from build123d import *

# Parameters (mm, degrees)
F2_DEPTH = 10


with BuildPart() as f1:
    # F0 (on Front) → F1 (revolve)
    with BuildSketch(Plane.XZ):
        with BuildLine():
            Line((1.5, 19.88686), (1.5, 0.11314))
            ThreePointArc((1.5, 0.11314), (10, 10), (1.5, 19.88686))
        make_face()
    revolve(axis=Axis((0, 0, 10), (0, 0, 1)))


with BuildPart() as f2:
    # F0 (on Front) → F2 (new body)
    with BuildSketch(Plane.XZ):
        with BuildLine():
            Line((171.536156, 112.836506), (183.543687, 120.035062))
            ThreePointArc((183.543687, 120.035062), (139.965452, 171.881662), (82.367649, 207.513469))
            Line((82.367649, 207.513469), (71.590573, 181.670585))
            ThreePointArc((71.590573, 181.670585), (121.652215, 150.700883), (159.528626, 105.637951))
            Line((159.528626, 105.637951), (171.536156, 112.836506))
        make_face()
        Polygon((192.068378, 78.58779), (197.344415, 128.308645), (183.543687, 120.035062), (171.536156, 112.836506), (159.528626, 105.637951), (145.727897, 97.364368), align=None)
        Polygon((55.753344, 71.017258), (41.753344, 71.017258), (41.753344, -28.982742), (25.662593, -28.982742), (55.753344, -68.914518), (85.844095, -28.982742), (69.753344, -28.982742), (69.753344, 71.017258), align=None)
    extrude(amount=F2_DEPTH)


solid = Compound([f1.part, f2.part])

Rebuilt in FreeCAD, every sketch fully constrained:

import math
import FreeCAD as App
import Part
import Sketcher

V = App.Vector
Q = App.Units.Quantity


def add_polygon(sketch, points):
    """Adds a closed chain of lines whose ends are joined by coincident constraints."""
    first, n = sketch.GeometryCount, len(points)
    for a, b in zip(points, points[1:] + points[:1]):
        sketch.addGeometry(Part.LineSegment(App.Vector(*a, 0), App.Vector(*b, 0)), False)
    for i in range(n):
        sketch.addConstraint(Sketcher.Constraint("Coincident", first + i, 2, first + (i + 1) % n, 1))

doc = App.newDocument("Part")
body = doc.addObject("PartDesign::Body", "Body")

sketch1 = doc.addObject("Sketcher::SketchObject", "Sketch")
body.addObject(sketch1)
sketch1.AttachmentSupport = (doc.XZ_Plane, [""])
sketch1.MapMode = "FlatFace"
sketch1.addGeometry([
    Part.LineSegment(V(1.5, 19.88686, 0), V(1.5, 0.11314, 0)),
    Part.ArcOfCircle(Part.Circle(V(0, 10, 0), V(0, 0, 1), 10), math.radians(-81.373073), math.radians(81.373073)),
], False)
sketch1.addConstraint([
    Sketcher.Constraint("Coincident", 0, 1, 1, 2),
    Sketcher.Constraint("Coincident", 1, 1, 0, 2),
    Sketcher.Constraint("Vertical", 0),
    Sketcher.Constraint("PointOnObject", 1, 3, -2),
    Sketcher.Constraint("Radius", 1, Q("10 mm")),
    Sketcher.Constraint("DistanceY", -1, 1, 1, 3, Q("10 mm")),
    Sketcher.Constraint("DistanceX", -1, 1, 0, 1, Q("1.5 mm")),
])
revolution = doc.addObject("PartDesign::Revolution", "Revolution")
body.addObject(revolution)
revolution.Profile = sketch1
revolution.ReferenceAxis = (sketch1, ["V_Axis"])
revolution.Angle = 360
body2 = doc.addObject("PartDesign::Body", "Body001")
body2.AllowCompound = True

sketch2 = doc.addObject("Sketcher::SketchObject", "Sketch001")
body2.addObject(sketch2)
sketch2.AttachmentSupport = (doc.getObject("XZ_Plane001"), [""])
sketch2.MapMode = "FlatFace"
sketch2.addGeometry(Part.ArcOfCircle(Part.Circle(V(0.000008, 10.00001, 0), V(0, 0, 1), 213.999988), math.radians(30.942829), math.radians(67.362745)), False)
sketch2.addGeometry(Part.LineSegment(V(82.367649, 207.513469, 0), V(71.590573, 181.670585, 0)), False)
sketch2.addGeometry(Part.ArcOfCircle(Part.Circle(V(-0.000004, 9.999993, 0), V(0, 0, 1), 186.000008), math.radians(30.942831), math.radians(67.362743)), False)
sketch2.addGeometry(Part.LineSegment(V(159.528626, 105.637951, 0), V(145.727897, 97.364368, 0)), False)
sketch2.addGeometry(Part.LineSegment(V(145.727897, 97.364368, 0), V(192.068378, 78.58779, 0)), False)
sketch2.addGeometry(Part.LineSegment(V(192.068378, 78.58779, 0), V(197.344415, 128.308645, 0)), False)
sketch2.addGeometry(Part.LineSegment(V(197.344415, 128.308645, 0), V(183.543687, 120.035062, 0)), False)
add_polygon(sketch2, [(41.753344, 71.017258), (41.753344, -28.982742), (25.662593, -28.982742), (55.753344, -68.914518), (85.844095, -28.982742), (69.753344, -28.982742), (69.753344, 71.017258)])
sketch2.addConstraint([
    Sketcher.Constraint("Coincident", 0, 2, 1, 1),
    Sketcher.Constraint("Coincident", 1, 2, 2, 2),
    Sketcher.Constraint("Coincident", 2, 1, 3, 1),
    Sketcher.Constraint("Coincident", 3, 2, 4, 1),
    Sketcher.Constraint("Coincident", 4, 2, 5, 1),
    Sketcher.Constraint("Coincident", 5, 2, 6, 1),
    Sketcher.Constraint("Coincident", 6, 2, 0, 1),
    Sketcher.Constraint("Vertical", 7),
    Sketcher.Constraint("Horizontal", 8),
    Sketcher.Constraint("Horizontal", 11),
    Sketcher.Constraint("Vertical", 12),
    Sketcher.Constraint("Horizontal", 13),
    Sketcher.Constraint("Parallel", 3, 6),
    Sketcher.Constraint("Horizontal", 8, 2, 10, 2),
    Sketcher.Constraint("Equal", 8, 11),
    Sketcher.Constraint("Equal", 4, 5),
    Sketcher.Constraint("Equal", 3, 6),
    Sketcher.Constraint("Equal", 5, 9),
    Sketcher.Constraint("Equal", 9, 10),
    Sketcher.Constraint("DistanceX", 13, 2, 13, 1, Q("28 mm")),
    Sketcher.Constraint("DistanceY", 7, 2, 7, 1, Q("100 mm")),
    Sketcher.Constraint("Angle", 9, Q("-53 deg")),
    Sketcher.Constraint("Distance", 1, Q("28 mm")),
    Sketcher.Constraint("Distance", 4, Q("50.000001 mm")),
    Sketcher.Constraint("Radius", 0, Q("213.999988 mm")),
    Sketcher.Constraint("Radius", 2, Q("186.000008 mm")),
    Sketcher.Constraint("DistanceY", 3, 2, 0, 2, Q("110.149101 mm")),
    Sketcher.Constraint("DistanceX", 2, 3, 3, 2, Q("145.727901 mm")),
    Sketcher.Constraint("DistanceX", 2, 3, 10, 2, Q("85.844099 mm")),
    Sketcher.Constraint("Distance", 3, Q("16.090752 mm")),
    Sketcher.Constraint("DistanceY", -1, 1, 0, 3, Q("10.00001 mm")),
    Sketcher.Constraint("DistanceY", -1, 1, 0, 2, Q("207.513469 mm")),
    Sketcher.Constraint("DistanceY", -1, 1, 2, 1, Q("105.637951 mm")),
    Sketcher.Constraint("DistanceX", -1, 1, 4, 2, Q("192.068378 mm")),
    Sketcher.Constraint("DistanceY", -1, 1, 4, 2, Q("78.58779 mm")),
    Sketcher.Constraint("DistanceY", 7, 2, -1, 1, Q("28.982742 mm")),
    Sketcher.Constraint("DistanceY", 2, 3, 1, 2, Q("171.670592 mm")),
])
pad1 = doc.addObject("PartDesign::Pad", "Pad")
body2.addObject(pad1)
pad1.Profile = sketch2
pad1.Length = 10

doc.recompute()
